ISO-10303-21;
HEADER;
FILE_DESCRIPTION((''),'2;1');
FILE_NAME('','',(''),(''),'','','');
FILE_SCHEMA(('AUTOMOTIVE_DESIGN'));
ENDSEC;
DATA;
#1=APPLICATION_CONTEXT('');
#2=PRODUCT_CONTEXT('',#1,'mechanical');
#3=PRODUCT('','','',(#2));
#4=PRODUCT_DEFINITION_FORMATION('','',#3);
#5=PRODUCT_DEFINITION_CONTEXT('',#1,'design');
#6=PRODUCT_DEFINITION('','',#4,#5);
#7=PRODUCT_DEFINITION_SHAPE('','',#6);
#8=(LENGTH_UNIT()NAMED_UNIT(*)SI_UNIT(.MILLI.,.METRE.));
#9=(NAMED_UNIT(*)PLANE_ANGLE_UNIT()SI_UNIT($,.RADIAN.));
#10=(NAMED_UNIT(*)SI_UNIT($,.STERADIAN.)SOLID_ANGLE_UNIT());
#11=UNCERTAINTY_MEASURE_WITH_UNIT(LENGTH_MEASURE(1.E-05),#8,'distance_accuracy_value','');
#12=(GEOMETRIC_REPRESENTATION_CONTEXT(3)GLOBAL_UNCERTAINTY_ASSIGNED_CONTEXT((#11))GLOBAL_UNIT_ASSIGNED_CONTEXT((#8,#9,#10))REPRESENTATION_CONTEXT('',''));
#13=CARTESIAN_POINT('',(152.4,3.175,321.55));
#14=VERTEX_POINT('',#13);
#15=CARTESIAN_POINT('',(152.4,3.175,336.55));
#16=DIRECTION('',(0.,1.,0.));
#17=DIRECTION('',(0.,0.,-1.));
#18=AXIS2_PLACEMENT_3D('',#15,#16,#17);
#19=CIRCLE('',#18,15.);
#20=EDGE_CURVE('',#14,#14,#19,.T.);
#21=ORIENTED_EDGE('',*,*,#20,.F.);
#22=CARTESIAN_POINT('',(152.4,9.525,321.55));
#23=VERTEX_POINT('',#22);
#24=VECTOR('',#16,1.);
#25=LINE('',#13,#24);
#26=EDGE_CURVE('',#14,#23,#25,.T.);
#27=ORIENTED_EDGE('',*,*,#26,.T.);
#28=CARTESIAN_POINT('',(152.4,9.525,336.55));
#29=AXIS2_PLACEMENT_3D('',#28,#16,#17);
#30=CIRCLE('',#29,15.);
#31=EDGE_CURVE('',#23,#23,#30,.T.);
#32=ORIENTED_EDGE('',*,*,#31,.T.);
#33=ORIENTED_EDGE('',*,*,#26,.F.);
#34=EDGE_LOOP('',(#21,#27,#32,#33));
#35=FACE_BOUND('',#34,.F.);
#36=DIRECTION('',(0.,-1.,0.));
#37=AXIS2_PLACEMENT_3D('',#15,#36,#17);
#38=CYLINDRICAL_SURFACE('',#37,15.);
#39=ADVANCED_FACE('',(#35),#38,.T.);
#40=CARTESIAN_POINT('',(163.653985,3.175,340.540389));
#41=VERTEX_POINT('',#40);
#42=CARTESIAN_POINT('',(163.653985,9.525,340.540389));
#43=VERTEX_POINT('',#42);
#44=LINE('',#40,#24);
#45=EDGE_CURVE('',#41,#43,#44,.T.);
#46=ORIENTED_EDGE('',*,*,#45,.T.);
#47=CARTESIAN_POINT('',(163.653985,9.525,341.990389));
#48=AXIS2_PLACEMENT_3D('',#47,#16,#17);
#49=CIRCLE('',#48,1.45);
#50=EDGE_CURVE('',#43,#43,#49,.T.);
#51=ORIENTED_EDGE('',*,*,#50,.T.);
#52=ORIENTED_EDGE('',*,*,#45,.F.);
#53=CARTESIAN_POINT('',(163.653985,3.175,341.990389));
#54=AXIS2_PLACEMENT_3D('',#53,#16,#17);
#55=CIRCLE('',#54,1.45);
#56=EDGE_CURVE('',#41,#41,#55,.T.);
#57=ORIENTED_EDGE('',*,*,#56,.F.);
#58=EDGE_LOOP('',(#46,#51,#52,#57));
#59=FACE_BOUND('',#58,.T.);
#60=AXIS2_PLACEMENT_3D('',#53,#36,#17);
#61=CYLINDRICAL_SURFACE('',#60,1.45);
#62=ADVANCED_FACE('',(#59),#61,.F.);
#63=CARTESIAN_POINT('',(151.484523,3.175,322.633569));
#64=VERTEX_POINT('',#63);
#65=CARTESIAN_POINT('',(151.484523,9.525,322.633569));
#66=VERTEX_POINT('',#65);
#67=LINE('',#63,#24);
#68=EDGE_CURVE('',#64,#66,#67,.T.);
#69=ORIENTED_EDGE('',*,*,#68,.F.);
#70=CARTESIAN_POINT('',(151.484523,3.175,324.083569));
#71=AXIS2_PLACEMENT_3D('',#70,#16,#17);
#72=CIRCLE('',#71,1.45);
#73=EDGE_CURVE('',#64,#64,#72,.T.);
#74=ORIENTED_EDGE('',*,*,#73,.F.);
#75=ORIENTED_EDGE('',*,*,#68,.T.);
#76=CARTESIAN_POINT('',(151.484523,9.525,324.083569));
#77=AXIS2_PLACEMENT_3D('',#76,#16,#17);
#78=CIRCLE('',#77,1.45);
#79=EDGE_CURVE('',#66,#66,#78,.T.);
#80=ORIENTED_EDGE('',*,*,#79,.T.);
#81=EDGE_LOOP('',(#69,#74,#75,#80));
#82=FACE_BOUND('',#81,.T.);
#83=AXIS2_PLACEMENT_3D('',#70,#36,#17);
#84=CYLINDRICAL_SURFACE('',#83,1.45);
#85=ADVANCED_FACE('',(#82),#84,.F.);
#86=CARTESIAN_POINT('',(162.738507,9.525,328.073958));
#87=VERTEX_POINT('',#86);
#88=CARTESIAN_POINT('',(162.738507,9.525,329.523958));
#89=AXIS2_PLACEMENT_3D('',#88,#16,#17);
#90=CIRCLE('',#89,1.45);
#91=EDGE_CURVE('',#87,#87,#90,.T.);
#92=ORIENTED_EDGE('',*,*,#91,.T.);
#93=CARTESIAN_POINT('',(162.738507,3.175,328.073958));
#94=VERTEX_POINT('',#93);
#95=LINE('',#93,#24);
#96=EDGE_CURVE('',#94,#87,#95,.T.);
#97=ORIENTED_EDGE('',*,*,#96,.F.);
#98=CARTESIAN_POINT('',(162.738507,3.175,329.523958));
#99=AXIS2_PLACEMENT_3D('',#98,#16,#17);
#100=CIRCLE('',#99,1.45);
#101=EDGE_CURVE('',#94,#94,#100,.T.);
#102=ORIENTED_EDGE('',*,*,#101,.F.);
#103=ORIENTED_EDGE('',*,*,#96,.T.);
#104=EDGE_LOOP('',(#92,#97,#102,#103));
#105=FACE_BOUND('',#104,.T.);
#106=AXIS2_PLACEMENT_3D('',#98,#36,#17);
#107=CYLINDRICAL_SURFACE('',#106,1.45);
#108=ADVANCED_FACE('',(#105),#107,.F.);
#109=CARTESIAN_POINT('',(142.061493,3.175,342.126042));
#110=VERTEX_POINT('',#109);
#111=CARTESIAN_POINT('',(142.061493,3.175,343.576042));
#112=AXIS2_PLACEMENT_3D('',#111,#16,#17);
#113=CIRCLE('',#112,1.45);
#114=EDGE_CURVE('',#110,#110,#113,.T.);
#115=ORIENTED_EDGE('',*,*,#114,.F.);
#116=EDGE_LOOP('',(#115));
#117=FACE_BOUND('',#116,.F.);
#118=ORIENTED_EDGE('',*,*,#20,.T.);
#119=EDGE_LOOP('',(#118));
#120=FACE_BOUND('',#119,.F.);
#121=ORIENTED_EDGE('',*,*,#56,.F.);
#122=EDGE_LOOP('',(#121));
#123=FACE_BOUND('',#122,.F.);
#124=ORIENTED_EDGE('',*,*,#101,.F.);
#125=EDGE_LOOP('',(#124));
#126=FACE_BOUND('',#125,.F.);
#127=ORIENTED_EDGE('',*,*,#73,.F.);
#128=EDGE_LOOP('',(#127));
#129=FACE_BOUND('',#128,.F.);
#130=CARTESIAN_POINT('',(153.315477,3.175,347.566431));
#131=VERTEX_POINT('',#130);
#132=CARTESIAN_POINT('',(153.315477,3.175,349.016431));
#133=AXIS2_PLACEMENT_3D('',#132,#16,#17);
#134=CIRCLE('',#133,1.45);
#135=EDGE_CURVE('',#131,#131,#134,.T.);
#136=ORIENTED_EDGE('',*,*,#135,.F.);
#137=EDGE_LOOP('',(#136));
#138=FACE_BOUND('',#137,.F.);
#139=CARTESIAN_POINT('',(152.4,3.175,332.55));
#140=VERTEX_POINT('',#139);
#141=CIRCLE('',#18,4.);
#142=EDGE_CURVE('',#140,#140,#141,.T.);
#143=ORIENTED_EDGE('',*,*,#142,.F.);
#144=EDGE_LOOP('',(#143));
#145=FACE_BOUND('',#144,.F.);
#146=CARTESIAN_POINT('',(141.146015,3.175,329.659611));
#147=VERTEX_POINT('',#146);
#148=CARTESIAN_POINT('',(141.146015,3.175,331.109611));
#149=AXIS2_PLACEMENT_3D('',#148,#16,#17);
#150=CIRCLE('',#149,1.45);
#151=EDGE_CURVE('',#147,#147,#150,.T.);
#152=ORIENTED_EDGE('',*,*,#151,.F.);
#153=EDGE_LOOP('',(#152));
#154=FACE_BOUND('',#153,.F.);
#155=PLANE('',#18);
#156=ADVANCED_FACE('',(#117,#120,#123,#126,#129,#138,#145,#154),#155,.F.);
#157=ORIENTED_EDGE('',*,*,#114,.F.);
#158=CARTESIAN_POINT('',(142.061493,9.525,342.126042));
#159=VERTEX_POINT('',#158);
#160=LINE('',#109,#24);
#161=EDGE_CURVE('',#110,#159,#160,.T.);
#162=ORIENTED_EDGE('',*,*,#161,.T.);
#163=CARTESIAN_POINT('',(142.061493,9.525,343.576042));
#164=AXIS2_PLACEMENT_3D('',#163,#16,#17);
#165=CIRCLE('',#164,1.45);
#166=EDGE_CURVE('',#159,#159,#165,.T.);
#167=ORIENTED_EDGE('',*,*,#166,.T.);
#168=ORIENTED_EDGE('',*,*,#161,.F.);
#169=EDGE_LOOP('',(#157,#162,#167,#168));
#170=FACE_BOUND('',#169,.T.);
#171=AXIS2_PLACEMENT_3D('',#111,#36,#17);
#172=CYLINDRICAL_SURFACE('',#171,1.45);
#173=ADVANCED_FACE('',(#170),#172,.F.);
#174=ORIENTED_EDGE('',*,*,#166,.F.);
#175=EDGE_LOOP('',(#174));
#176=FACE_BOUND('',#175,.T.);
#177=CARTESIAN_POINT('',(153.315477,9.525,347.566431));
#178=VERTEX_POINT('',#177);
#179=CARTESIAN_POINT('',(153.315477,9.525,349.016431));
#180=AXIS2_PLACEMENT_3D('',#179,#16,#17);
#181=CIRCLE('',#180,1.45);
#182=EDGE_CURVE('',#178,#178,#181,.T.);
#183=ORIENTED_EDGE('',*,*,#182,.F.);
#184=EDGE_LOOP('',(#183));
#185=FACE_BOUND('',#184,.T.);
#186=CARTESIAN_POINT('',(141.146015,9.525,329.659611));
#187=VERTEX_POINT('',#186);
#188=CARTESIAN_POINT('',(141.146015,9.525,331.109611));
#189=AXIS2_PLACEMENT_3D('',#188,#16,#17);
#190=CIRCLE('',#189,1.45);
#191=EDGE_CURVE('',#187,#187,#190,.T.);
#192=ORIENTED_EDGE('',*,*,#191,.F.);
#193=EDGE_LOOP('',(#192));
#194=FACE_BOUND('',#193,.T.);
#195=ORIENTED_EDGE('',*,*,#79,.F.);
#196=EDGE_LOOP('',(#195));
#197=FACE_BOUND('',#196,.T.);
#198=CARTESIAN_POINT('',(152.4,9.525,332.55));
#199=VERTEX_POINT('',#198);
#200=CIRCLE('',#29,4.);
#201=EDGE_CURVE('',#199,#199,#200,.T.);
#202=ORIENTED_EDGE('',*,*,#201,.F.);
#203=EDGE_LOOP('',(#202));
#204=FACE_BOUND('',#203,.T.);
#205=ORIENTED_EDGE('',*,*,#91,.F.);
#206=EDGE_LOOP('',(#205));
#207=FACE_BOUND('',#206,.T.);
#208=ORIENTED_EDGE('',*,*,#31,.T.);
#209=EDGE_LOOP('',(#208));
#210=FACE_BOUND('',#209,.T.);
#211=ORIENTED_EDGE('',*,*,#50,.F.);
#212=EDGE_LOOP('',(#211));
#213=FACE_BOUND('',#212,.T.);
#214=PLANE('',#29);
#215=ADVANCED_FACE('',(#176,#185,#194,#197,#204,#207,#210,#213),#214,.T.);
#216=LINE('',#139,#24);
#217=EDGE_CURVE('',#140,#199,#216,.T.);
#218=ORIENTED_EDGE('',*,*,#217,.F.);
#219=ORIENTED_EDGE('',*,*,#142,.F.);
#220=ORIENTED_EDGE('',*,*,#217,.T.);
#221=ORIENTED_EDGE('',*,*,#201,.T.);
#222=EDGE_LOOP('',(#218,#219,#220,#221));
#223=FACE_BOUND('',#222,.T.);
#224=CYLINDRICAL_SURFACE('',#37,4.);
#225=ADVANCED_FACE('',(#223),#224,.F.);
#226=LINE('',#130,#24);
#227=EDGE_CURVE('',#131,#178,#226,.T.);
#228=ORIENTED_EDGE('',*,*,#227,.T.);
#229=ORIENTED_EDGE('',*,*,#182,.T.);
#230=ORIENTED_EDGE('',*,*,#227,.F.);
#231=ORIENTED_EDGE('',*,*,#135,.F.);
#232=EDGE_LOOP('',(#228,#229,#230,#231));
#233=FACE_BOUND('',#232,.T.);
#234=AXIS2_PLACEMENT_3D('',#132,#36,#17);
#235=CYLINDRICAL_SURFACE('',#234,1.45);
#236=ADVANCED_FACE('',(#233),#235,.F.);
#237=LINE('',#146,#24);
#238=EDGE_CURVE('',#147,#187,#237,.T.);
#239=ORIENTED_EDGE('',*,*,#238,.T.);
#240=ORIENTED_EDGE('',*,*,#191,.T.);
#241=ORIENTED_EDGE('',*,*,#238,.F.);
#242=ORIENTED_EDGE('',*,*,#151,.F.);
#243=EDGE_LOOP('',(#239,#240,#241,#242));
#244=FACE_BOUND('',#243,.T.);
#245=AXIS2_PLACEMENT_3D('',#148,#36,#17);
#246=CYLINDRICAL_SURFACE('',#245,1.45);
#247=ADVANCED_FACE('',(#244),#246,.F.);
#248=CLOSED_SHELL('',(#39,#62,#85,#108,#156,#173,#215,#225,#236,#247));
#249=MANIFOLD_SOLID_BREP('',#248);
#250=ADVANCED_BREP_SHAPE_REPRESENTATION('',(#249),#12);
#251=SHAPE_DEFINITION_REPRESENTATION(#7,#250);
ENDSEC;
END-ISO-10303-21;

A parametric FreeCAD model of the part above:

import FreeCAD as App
import Part
import Sketcher

V = App.Vector

doc = App.newDocument("Part")
body = doc.addObject("PartDesign::Body", "Body")

# Sketch on XZ plane
sketch1 = doc.addObject("Sketcher::SketchObject", "Sketch")
body.addObject(sketch1)
sketch1.AttachmentSupport = (doc.XZ_Plane, [""])
sketch1.MapMode = "FlatFace"
sketch1.AttachmentOffset = App.Placement(V(0, 0, -3.175), App.Rotation())
sketch1.addGeometry(Part.Circle(V(152.4, 336.55, 0), V(0, 0, 1), 15), False)
sketch1.addConstraint([
    Sketcher.Constraint("Diameter", 0, 30.0),
    Sketcher.Constraint("DistanceX", -1, 1, 0, 3, 152.4),
    Sketcher.Constraint("DistanceY", -1, 1, 0, 3, 336.55),
])
pad1 = doc.addObject("PartDesign::Pad", "Pad")
body.addObject(pad1)
pad1.Profile = sketch1
pad1.Length = 6.35
pad1.Reversed = True

# Sketch on XZ plane
sketch2 = doc.addObject("Sketcher::SketchObject", "Sketch001")
body.addObject(sketch2)
sketch2.AttachmentSupport = (doc.XZ_Plane, [""])
sketch2.MapMode = "FlatFace"
sketch2.AttachmentOffset = App.Placement(V(0, 0, -3.175), App.Rotation())
sketch2.addGeometry([
    Part.Circle(V(163.653985, 341.990389, 0), V(0, 0, 1), 1.45),  # 0
    Part.Circle(V(153.315477, 349.016431, 0), V(0, 0, 1), 1.45),  # 1
    Part.Circle(V(142.061493, 343.576042, 0), V(0, 0, 1), 1.45),  # 2
    Part.Circle(V(141.146015, 331.109611, 0), V(0, 0, 1), 1.45),  # 3
    Part.Circle(V(151.484523, 324.083569, 0), V(0, 0, 1), 1.45),  # 4
    Part.Circle(V(162.738507, 329.523958, 0), V(0, 0, 1), 1.45),  # 5
    Part.Circle(V(152.4, 336.55, 0), V(0, 0, 1), 4),  # 6
], False)
sketch2.addConstraint([
    Sketcher.Constraint("Equal", 0, 1),
    Sketcher.Constraint("Equal", 1, 2),
    Sketcher.Constraint("Equal", 2, 3),
    Sketcher.Constraint("Equal", 3, 4),
    Sketcher.Constraint("Equal", 4, 5),
    Sketcher.Constraint("Diameter", 6, 8.0),
    Sketcher.Constraint("Diameter", 0, 2.9),
    Sketcher.Constraint("DistanceX", -1, 1, 6, 3, 152.4),
    Sketcher.Constraint("DistanceY", -1, 1, 6, 3, 336.55),
    Sketcher.Constraint("DistanceY", -1, 1, 0, 3, 341.990389),
    Sketcher.Constraint("DistanceY", -1, 1, 1, 3, 349.016431),
    Sketcher.Constraint("DistanceY", -1, 1, 3, 3, 331.109611),
    Sketcher.Constraint("DistanceY", -1, 1, 4, 3, 324.083569),
    Sketcher.Constraint("DistanceY", 2, 3, 1, 3, 5.440389),
    Sketcher.Constraint("DistanceX", 2, 3, 0, 3, 21.592492),
    Sketcher.Constraint("DistanceX", 3, 3, 0, 3, 22.507969),
    Sketcher.Constraint("DistanceX", 2, 3, 4, 3, 9.42303),
    Sketcher.Constraint("DistanceY", 4, 3, 5, 3, 5.440389),
    Sketcher.Constraint("DistanceX", 1, 3, 5, 3, 9.42303),
    Sketcher.Constraint("DistanceX", 3, 3, 5, 3, 21.592492),
    Sketcher.Constraint("DistanceX", -1, 1, 0, 3, 163.653985),
])
pocket1 = doc.addObject("PartDesign::Pocket", "Pocket")
body.addObject(pocket1)
pocket1.Profile = sketch2
pocket1.Length = 6.35

doc.recompute()
